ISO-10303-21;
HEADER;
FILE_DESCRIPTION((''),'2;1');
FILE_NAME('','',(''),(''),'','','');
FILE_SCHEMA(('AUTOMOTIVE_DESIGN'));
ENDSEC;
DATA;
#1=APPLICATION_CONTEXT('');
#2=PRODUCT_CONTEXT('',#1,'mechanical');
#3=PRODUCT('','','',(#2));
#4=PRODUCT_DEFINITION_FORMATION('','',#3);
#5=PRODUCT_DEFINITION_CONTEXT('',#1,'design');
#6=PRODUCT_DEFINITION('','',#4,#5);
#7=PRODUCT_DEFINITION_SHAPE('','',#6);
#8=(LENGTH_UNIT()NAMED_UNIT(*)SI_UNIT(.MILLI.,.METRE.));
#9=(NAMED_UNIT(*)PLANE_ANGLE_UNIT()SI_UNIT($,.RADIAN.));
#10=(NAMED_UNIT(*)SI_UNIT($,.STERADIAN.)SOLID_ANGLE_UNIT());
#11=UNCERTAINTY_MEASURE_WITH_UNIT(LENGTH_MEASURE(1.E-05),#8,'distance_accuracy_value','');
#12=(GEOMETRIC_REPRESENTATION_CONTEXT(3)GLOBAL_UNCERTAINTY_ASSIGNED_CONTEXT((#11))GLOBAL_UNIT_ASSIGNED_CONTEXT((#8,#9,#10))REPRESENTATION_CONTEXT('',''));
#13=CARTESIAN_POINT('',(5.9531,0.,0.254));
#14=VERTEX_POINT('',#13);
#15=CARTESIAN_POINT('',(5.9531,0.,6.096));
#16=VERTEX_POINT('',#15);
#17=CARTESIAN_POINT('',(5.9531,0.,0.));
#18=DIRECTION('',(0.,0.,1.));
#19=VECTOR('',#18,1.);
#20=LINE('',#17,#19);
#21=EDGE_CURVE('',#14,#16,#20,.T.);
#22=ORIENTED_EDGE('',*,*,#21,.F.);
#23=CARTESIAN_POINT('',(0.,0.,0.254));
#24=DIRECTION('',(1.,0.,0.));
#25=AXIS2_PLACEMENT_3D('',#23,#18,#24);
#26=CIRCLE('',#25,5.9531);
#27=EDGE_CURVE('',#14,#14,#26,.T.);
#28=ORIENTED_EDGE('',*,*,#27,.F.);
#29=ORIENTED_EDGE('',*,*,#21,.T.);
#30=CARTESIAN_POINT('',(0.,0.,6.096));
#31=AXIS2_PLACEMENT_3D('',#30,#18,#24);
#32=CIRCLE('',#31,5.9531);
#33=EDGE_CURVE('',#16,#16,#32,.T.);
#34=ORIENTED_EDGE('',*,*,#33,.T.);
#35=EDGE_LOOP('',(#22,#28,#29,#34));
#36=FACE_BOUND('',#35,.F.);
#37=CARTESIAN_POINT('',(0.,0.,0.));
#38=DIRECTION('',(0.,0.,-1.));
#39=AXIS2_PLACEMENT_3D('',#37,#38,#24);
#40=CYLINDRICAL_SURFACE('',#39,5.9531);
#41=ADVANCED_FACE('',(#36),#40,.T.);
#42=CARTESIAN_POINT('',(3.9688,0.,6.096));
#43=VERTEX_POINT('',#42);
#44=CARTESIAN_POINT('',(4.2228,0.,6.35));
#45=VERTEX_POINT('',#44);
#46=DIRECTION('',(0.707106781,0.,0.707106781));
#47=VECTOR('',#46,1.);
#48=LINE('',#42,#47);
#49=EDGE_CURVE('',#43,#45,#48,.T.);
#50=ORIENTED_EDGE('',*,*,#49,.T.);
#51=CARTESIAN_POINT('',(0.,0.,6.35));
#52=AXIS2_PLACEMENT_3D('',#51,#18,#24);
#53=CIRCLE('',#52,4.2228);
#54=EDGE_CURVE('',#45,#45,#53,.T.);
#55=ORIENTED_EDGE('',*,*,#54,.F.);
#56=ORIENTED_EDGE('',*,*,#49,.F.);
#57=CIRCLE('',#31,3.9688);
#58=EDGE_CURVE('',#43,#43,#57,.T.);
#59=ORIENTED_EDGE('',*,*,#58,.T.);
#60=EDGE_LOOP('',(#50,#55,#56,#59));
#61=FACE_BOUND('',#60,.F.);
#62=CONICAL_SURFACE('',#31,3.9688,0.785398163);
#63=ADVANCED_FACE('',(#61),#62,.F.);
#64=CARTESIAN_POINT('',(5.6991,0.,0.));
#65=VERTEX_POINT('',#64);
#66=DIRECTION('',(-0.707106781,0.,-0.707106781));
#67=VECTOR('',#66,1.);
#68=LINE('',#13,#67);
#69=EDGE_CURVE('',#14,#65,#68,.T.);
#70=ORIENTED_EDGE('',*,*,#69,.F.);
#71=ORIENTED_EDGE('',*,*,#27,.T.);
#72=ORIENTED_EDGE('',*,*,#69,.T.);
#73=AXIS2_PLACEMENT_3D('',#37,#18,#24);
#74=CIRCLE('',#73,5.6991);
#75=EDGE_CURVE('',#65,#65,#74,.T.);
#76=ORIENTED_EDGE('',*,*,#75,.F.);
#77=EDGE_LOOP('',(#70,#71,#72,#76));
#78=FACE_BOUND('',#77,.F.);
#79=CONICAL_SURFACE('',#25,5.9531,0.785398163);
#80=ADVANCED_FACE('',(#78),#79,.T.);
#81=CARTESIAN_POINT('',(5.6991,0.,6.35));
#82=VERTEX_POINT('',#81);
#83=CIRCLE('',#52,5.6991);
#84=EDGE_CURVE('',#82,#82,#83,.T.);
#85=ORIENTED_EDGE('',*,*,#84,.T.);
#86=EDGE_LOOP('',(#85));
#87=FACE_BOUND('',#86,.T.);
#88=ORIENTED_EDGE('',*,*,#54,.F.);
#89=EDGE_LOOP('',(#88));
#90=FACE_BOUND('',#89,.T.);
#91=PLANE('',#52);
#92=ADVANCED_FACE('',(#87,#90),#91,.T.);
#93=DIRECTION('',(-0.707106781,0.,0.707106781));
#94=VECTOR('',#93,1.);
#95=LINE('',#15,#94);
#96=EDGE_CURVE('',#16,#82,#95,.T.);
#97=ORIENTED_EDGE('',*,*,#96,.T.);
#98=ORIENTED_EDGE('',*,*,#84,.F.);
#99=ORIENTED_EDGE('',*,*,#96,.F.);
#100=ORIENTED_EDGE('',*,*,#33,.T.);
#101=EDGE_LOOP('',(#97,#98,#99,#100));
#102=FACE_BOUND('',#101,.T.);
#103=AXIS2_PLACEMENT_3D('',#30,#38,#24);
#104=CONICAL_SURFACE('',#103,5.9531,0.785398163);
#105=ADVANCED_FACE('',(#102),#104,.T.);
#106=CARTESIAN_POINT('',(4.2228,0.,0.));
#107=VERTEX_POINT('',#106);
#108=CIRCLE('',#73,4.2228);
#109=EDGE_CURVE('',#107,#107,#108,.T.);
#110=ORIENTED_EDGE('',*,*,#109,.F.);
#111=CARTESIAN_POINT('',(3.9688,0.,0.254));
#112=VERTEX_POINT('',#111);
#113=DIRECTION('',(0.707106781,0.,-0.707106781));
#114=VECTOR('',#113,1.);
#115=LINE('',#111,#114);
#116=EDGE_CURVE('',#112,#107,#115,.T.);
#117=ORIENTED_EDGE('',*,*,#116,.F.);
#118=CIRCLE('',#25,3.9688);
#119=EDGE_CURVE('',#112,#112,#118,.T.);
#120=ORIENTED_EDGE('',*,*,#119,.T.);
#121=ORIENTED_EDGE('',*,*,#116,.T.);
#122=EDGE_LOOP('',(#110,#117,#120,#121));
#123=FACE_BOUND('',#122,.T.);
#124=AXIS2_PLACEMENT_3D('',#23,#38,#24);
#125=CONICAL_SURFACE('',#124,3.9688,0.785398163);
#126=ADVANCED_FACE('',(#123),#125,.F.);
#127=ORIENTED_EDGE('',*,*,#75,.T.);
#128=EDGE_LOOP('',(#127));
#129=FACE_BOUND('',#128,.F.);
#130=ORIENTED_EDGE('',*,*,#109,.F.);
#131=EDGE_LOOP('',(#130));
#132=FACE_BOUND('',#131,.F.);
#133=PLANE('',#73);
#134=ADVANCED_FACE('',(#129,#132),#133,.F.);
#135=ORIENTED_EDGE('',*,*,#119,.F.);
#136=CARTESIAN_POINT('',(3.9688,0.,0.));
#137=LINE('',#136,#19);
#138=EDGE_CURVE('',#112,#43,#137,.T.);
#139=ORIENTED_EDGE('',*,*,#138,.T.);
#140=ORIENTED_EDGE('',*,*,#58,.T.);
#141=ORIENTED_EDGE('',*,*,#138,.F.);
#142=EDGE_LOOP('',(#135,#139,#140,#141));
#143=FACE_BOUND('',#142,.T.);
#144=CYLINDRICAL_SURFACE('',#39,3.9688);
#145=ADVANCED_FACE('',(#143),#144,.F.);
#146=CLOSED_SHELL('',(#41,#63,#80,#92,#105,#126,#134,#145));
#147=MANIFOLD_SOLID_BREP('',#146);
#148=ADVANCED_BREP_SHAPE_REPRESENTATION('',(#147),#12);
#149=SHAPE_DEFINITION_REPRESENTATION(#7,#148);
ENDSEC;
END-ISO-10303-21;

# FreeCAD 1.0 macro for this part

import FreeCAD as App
import Part
import Sketcher
from FreeCAD import Vector
Q = App.Units.Quantity


def edges_at(feature, points):
    """Names of the edges that pass closest to the given points."""
    edges = feature.Shape.Edges
    near = lambda p: min(range(len(edges)), key=lambda i: edges[i].distToShape(Part.Vertex(*p))[0])
    return sorted({f"Edge{near(p) + 1}" for p in points})

doc = App.newDocument("Part")
body = doc.addObject("PartDesign::Body", "Body")

# Sketch on XY plane
sketch1 = body.newObject("Sketcher::SketchObject", "Sketch")
sketch1.AttachmentSupport = (doc.getObject("XY_Plane"), [""])
sketch1.MapMode = "FlatFace"
sketch1.addGeometry([
    Part.Circle(Vector(0, 0, 0), Vector(0, 0, 1), 6),
    Part.Circle(Vector(0, 0, 0), Vector(0, 0, 1), 4),
], False)
sketch1.addConstraint([
    Sketcher.Constraint("Coincident", 0, 3, -1, 1),
    Sketcher.Constraint("Coincident", 1, 3, -1, 1),
    Sketcher.Constraint("Diameter", 0, Q("0.468748 in")),
    Sketcher.Constraint("Diameter", 1, Q("0.3125 in")),
])
pad1 = body.newObject("PartDesign::Pad", "Pad")
pad1.Profile = sketch1
pad1.Length = Q("0.25 in")
doc.recompute()

chamfer = body.newObject("PartDesign::Chamfer", "Chamfer")
chamfer.Base = (pad1, edges_at(pad1, [
    (-5.953, 0, 6.35),
    (-3.969, 0, 6.35),
    (-3.969, 0, 0),
    (-5.953, 0, 0),
]))
chamfer.Size = Q("0.01 in")

doc.recompute()
